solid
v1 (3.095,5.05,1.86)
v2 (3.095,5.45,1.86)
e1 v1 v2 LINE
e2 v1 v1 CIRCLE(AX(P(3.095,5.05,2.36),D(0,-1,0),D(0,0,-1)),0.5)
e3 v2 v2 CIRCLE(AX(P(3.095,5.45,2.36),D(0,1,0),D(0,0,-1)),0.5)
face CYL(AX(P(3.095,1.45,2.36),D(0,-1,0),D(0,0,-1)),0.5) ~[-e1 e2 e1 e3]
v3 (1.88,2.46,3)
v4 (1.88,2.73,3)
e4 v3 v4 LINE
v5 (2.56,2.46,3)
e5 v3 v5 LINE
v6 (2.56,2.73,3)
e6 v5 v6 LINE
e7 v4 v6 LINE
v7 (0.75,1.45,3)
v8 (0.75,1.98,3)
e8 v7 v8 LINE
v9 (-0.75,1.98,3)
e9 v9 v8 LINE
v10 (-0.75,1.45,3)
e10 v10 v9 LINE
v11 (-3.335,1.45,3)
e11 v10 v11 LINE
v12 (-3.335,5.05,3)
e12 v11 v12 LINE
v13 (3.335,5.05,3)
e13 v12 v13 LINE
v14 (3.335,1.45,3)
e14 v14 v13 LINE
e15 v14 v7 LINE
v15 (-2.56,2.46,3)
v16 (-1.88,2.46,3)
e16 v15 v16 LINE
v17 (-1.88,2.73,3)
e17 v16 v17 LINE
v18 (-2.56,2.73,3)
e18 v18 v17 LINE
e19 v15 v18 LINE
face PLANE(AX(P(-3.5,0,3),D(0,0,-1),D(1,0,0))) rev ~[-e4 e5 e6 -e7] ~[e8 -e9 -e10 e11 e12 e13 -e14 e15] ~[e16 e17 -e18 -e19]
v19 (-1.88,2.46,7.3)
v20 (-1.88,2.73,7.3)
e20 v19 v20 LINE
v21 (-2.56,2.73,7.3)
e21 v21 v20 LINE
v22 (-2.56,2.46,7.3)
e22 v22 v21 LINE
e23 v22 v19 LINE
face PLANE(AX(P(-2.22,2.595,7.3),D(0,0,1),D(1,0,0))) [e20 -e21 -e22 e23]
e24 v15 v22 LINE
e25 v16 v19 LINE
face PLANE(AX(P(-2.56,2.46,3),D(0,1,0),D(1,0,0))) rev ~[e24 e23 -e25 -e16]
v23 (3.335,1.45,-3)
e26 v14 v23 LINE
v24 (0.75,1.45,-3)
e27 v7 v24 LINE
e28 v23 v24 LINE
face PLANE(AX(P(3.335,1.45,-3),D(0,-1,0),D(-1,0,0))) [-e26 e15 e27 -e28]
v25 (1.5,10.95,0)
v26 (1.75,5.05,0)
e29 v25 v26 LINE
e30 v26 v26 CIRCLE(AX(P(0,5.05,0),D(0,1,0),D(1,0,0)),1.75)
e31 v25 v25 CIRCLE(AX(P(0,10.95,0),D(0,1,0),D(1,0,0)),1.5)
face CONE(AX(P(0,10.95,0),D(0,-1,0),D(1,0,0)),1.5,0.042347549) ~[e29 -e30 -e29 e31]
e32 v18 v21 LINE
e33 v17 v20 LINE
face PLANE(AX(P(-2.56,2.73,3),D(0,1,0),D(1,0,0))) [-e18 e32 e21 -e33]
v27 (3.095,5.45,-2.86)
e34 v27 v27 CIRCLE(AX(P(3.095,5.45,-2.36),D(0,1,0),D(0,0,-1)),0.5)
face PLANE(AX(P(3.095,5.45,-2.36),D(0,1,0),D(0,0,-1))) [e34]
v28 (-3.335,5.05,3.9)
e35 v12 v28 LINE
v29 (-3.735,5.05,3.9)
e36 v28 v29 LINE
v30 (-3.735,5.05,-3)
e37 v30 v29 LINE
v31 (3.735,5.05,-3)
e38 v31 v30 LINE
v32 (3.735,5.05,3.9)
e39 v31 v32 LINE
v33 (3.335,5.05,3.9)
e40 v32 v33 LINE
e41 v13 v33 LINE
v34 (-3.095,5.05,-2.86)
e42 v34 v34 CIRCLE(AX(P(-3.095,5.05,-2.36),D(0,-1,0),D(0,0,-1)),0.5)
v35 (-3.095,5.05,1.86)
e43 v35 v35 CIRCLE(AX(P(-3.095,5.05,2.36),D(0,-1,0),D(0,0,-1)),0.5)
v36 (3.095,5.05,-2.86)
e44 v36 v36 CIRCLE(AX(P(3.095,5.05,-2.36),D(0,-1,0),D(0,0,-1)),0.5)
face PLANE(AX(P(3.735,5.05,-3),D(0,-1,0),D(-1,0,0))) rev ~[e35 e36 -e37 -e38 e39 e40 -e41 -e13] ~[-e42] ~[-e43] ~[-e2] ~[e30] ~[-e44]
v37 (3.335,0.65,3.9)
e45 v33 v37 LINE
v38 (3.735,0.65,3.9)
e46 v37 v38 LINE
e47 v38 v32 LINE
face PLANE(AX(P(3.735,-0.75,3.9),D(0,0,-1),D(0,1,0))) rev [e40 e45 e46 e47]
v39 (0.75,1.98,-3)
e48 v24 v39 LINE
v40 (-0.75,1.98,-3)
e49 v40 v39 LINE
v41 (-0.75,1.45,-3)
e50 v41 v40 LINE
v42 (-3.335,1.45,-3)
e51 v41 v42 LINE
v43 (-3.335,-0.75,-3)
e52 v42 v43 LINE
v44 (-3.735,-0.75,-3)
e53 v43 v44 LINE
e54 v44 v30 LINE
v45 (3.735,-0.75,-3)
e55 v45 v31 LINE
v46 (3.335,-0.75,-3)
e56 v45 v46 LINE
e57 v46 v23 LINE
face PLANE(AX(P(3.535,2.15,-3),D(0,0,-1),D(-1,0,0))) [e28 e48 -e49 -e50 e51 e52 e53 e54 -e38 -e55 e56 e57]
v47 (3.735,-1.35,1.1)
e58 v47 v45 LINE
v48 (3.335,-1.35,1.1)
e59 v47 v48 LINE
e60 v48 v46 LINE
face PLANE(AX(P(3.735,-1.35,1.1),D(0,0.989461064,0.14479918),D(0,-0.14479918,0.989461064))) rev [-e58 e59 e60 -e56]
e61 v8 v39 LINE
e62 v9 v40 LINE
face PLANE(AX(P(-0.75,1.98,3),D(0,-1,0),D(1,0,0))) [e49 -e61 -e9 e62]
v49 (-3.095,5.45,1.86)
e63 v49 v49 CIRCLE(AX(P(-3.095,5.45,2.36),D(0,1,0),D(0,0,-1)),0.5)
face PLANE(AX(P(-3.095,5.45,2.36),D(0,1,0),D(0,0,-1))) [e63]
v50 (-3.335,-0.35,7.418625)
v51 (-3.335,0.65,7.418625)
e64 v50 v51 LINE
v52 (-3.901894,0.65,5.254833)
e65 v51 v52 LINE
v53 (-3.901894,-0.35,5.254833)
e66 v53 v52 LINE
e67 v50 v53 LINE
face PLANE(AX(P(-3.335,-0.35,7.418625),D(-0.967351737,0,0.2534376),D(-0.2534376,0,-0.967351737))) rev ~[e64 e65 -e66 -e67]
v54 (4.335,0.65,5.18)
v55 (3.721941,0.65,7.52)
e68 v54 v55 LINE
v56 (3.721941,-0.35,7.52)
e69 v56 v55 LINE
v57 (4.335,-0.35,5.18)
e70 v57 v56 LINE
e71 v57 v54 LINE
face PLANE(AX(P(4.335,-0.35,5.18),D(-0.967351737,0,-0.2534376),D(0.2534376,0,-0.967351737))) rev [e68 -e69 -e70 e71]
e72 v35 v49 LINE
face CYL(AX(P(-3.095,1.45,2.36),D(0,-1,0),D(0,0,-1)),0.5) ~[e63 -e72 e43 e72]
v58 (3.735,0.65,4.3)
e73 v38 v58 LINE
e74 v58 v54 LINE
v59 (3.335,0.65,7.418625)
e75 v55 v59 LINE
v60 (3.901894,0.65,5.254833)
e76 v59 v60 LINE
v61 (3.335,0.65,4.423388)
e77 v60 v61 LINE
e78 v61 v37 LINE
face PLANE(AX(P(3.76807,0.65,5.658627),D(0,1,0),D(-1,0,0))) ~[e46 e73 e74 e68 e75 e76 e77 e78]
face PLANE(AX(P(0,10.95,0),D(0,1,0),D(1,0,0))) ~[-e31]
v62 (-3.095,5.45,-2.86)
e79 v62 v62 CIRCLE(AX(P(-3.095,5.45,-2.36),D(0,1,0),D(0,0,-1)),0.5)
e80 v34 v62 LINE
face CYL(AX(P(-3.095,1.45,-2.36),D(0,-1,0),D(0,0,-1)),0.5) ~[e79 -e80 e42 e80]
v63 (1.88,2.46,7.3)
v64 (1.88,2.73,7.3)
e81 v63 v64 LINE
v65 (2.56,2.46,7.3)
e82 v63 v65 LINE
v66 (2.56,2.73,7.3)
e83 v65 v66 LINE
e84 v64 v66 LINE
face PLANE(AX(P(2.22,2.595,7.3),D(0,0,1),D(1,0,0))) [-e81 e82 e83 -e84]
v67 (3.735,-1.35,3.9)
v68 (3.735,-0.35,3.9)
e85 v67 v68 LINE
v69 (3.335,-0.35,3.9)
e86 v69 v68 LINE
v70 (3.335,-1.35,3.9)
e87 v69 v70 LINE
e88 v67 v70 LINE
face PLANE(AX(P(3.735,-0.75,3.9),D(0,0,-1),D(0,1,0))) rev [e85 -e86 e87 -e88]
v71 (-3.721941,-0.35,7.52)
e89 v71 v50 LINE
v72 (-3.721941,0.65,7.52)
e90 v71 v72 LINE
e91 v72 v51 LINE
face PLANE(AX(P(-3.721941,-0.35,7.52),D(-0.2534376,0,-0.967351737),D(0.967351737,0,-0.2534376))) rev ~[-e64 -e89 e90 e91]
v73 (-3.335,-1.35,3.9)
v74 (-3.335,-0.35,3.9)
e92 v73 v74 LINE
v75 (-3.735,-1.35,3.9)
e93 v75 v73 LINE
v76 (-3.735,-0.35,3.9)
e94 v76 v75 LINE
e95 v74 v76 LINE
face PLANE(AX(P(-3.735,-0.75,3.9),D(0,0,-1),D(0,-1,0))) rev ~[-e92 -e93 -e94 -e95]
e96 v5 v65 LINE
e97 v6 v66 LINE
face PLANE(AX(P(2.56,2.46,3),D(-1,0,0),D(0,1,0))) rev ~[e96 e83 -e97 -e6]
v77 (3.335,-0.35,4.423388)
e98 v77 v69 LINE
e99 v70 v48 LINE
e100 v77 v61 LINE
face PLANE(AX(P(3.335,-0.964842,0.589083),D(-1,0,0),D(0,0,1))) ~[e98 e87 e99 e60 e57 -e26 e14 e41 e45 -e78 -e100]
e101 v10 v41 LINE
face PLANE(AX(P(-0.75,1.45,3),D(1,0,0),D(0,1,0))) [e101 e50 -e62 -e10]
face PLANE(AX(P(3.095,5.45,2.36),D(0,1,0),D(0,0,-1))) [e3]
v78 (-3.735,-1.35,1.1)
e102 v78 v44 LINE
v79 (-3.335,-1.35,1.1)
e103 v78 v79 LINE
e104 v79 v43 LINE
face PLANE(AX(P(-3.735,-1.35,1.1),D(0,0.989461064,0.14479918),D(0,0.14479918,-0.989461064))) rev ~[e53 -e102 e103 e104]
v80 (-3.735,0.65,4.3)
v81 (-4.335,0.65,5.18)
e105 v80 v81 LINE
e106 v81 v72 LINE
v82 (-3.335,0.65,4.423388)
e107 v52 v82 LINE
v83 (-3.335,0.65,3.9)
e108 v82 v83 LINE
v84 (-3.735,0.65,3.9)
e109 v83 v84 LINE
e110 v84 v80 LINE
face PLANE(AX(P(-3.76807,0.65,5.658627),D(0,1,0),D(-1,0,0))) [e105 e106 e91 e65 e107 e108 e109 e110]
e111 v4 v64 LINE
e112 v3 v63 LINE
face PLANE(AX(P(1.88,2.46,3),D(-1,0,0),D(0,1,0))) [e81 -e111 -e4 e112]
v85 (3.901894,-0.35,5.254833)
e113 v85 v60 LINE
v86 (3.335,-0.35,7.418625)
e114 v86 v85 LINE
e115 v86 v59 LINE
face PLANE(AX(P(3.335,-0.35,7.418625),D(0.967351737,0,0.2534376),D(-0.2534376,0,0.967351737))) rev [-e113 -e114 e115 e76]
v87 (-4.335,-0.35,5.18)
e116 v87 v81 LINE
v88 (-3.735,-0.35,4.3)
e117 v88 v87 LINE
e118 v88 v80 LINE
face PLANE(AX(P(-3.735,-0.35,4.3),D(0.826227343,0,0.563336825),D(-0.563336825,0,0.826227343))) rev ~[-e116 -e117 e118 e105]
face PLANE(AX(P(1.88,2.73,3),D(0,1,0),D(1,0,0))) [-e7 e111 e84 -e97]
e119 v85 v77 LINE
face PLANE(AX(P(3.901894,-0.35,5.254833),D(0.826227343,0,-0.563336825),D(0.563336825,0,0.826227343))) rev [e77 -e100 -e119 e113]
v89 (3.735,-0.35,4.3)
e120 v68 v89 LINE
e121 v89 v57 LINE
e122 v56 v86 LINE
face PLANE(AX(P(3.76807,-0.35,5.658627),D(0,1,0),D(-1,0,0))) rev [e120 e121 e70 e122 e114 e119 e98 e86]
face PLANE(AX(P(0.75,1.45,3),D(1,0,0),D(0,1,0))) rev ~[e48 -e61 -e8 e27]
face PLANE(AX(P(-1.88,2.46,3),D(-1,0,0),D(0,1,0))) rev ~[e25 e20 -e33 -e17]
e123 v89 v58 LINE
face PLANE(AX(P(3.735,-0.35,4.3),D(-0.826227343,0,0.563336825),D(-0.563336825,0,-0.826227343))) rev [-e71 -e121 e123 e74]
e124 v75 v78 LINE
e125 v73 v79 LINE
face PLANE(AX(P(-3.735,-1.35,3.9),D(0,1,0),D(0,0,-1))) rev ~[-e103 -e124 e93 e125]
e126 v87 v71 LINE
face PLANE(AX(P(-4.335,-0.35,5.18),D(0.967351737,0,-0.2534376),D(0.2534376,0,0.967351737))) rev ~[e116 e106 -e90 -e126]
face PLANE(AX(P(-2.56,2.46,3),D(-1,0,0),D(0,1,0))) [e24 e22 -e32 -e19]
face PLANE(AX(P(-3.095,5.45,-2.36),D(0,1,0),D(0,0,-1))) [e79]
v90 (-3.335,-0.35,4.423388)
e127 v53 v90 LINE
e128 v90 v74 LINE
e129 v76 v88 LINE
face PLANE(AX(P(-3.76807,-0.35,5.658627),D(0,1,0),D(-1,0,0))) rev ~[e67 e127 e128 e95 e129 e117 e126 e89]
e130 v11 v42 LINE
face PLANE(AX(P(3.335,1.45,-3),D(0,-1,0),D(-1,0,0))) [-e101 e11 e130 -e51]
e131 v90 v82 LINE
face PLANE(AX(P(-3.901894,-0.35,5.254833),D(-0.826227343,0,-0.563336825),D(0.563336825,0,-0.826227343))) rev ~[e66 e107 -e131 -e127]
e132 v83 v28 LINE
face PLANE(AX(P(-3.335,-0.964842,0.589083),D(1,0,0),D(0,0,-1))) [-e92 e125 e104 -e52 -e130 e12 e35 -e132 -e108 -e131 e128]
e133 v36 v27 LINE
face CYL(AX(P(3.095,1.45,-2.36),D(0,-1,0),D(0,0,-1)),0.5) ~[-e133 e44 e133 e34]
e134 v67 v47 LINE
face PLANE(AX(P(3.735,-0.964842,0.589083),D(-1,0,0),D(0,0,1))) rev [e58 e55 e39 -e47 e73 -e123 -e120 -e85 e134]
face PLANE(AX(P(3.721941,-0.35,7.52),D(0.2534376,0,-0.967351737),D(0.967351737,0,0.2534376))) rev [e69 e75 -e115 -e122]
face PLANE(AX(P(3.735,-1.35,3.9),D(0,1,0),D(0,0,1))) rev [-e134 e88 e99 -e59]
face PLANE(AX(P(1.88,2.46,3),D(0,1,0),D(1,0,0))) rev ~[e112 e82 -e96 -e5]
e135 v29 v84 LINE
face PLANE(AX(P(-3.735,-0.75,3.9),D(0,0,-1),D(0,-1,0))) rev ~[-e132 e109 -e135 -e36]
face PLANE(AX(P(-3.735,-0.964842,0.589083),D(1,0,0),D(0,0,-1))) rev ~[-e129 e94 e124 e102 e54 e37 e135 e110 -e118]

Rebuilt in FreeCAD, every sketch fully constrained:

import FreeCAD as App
import Part
import Sketcher
from FreeCAD import Vector
Q = App.Units.Quantity


def add_polygon(sketch, points):
    """Adds a closed chain of lines whose ends are joined by coincident constraints."""
    first, n = sketch.GeometryCount, len(points)
    for a, b in zip(points, points[1:] + points[:1]):
        sketch.addGeometry(Part.LineSegment(App.Vector(*a, 0), App.Vector(*b, 0)), False)
    for i in range(n):
        sketch.addConstraint(Sketcher.Constraint("Coincident", first + i, 2, first + (i + 1) % n, 1))

doc = App.newDocument("Part")
body = doc.addObject("PartDesign::Body", "Body")

# Sketch on XZ plane
sketch1 = body.newObject("Sketcher::SketchObject", "Sketch")
sketch1.AttachmentSupport = (doc.getObject("XZ_Plane"), [""])
sketch1.MapMode = "FlatFace"
add_polygon(sketch1, [(-4, -3), (-4, 3), (4, 3), (4, -3)])  # lines 0-3
sketch1.addConstraint([
    Sketcher.Constraint("Vertical", 0),
    Sketcher.Constraint("Horizontal", 1),
    Sketcher.Constraint("Vertical", 2),
    Sketcher.Constraint("Horizontal", 3),
    Sketcher.Constraint("Symmetric", 0, 2, 2, 2, -1, 1),
    Sketcher.Constraint("DistanceX", 1, 1, 1, 2, Q("7 mm")),
    Sketcher.Constraint("DistanceY", 0, 1, 0, 2, Q("6 mm")),
])
pad1 = body.newObject("PartDesign::Pad", "Pad")
pad1.Profile = sketch1
pad1.Length = 5.05
pad1.Reversed = True

# Sketch on XY plane
sketch2 = body.newObject("Sketcher::SketchObject", "Sketch001")
sketch2.AttachmentSupport = (doc.getObject("XY_Plane"), [""])
sketch2.MapMode = "FlatFace"
sketch2.AttachmentOffset = App.Placement(Vector(0, 0, 3), App.Rotation())
add_polygon(sketch2, [(-2.56, 2.73), (-2.56, 2.46), (-1.88, 2.46), (-1.88, 2.73)])  # lines 0-3
add_polygon(sketch2, [(1.88, 2.73), (1.88, 2.46), (2.56, 2.46), (2.56, 2.73)])  # lines 4-7
sketch2.addConstraint([
    Sketcher.Constraint("Vertical", 0),
    Sketcher.Constraint("Horizontal", 1),
    Sketcher.Constraint("Vertical", 2),
    Sketcher.Constraint("Horizontal", 3),
    Sketcher.Constraint("Vertical", 4),
    Sketcher.Constraint("Horizontal", 5),
    Sketcher.Constraint("Vertical", 6),
    Sketcher.Constraint("Horizontal", 7),
    Sketcher.Constraint("Symmetric", 1, 2, 4, 2, -2),
    Sketcher.Constraint("Symmetric", 3, 2, 6, 2, -2),
    Sketcher.Constraint("DistanceX", 1, 1, 1, 2, Q("0.68 mm")),
    Sketcher.Constraint("DistanceY", 0, 2, 0, 1, Q("0.27 mm")),
    Sketcher.Constraint("DistanceX", 0, 2, -1, 1, Q("2.56 mm")),
    Sketcher.Constraint("DistanceY", -1, 1, 0, 2, Q("2.46 mm")),
])
pad2 = body.newObject("PartDesign::Pad", "Pad001")
pad2.Profile = sketch2
pad2.Length = 4.3

# Sketch on XY plane
sketch3 = body.newObject("Sketcher::SketchObject", "Sketch002")
sketch3.AttachmentSupport = (doc.getObject("XY_Plane"), [""])
sketch3.MapMode = "FlatFace"
sketch3.AttachmentOffset = App.Placement(Vector(0, 0, -3), App.Rotation())
add_polygon(sketch3, [(3.73, 5.05), (3.73, -0.75), (3.33, -0.75), (3.33, 5.05)])  # lines 0-3
add_polygon(sketch3, [(-3.33, 5.05), (-3.33, -0.75), (-3.73, -0.75), (-3.73, 5.05)])  # lines 4-7
sketch3.addConstraint([
    Sketcher.Constraint("Vertical", 0),
    Sketcher.Constraint("Horizontal", 1),
    Sketcher.Constraint("Vertical", 2),
    Sketcher.Constraint("Horizontal", 3),
    Sketcher.Constraint("Vertical", 4),
    Sketcher.Constraint("Horizontal", 5),
    Sketcher.Constraint("Vertical", 6),
    Sketcher.Constraint("Horizontal", 7),
    Sketcher.Constraint("Symmetric", 1, 2, 4, 2, -2),
    Sketcher.Constraint("Symmetric", 3, 2, 6, 2, -2),
    Sketcher.Constraint("DistanceX", 1, 2, 1, 1, Q("0.4 mm")),
    Sketcher.Constraint("DistanceY", 0, 2, 0, 1, Q("5.8 mm")),
    Sketcher.Constraint("DistanceY", 0, 2, -1, 1, Q("0.75 mm")),
    Sketcher.Constraint("DistanceX", 4, 2, 1, 2, Q("6.67 mm")),
])
pad3 = body.newObject("PartDesign::Pad", "Pad002")
pad3.Profile = sketch3
pad3.Length = 6.9

# Sketch on XY plane
sketch4 = body.newObject("Sketcher::SketchObject", "Sketch003")
sketch4.AttachmentSupport = (doc.getObject("XY_Plane"), [""])
sketch4.MapMode = "FlatFace"
sketch4.AttachmentOffset = App.Placement(Vector(0, 0, -3), App.Rotation())
add_polygon(sketch4, [(3.3, 1.4), (3.3, 0), (-3.3, 0), (-3.3, 1.4)])  # lines 0-3
sketch4.addConstraint([
    Sketcher.Constraint("Vertical", 0),
    Sketcher.Constraint("Horizontal", 1),
    Sketcher.Constraint("Vertical", 2),
    Sketcher.Constraint("Horizontal", 3),
    Sketcher.Constraint("Symmetric", 0, 2, 1, 2, -1, 1),
    Sketcher.Constraint("DistanceX", 1, 2, 1, 1, Q("6.67 mm")),
    Sketcher.Constraint("DistanceY", 0, 2, 0, 1, Q("1.45 mm")),
])
pocket1 = body.newObject("PartDesign::Pocket", "Pocket")
pocket1.Profile = sketch4
pocket1.Type = "ThroughAll"
pocket1.Reversed = True

# Sketch on XY plane
sketch5 = body.newObject("Sketcher::SketchObject", "Sketch004")
sketch5.AttachmentSupport = (doc.getObject("XY_Plane"), [""])
sketch5.MapMode = "FlatFace"
sketch5.AttachmentOffset = App.Placement(Vector(0, 0, 3), App.Rotation())
add_polygon(sketch5, [(-0.8, 2), (-0.8, 1.4), (0.8, 1.4), (0.8, 2)])  # lines 0-3
sketch5.addConstraint([
    Sketcher.Constraint("Vertical", 0),
    Sketcher.Constraint("Horizontal", 1),
    Sketcher.Constraint("Vertical", 2),
    Sketcher.Constraint("Horizontal", 3),
    Sketcher.Constraint("DistanceX", 1, 1, 1, 2, Q("1.5 mm")),
    Sketcher.Constraint("DistanceY", 0, 2, 0, 1, Q("0.53 mm")),
    Sketcher.Constraint("DistanceX", 0, 2, -1, 1, Q("0.75 mm")),
    Sketcher.Constraint("DistanceY", -1, 1, 0, 2, Q("1.45 mm")),
])
pocket2 = body.newObject("PartDesign::Pocket", "Pocket001")
pocket2.Profile = sketch5
pocket2.Type = "UpToFirst"

# Sketch on XZ plane
sketch6 = body.newObject("Sketcher::SketchObject", "Sketch005")
sketch6.AttachmentSupport = (doc.getObject("XZ_Plane"), [""])
sketch6.MapMode = "FlatFace"
sketch6.AttachmentOffset = App.Placement(Vector(0, 0, -1.45), App.Rotation())
sketch6.addGeometry([
    Part.Circle(Vector(-3.1, -2.4, 0), Vector(0, 0, 1), 0.5),
    Part.Circle(Vector(-3.1, 2.4, 0), Vector(0, 0, 1), 0.5),
    Part.Circle(Vector(3.1, -2.4, 0), Vector(0, 0, 1), 0.5),
    Part.Circle(Vector(3.1, 2.4, 0), Vector(0, 0, 1), 0.5),
], False)
sketch6.addConstraint([
    Sketcher.Constraint("Equal", 0, 1),
    Sketcher.Constraint("Equal", 1, 2),
    Sketcher.Constraint("Equal", 2, 3),
    Sketcher.Constraint("Symmetric", 1, 3, 2, 3, -1, 1),
    Sketcher.Constraint("Symmetric", 0, 3, 3, 3, -1, 1),
    Sketcher.Constraint("Symmetric", 0, 3, 2, 3, -2),
    Sketcher.Constraint("Diameter", 0, Q("1 mm")),
    Sketcher.Constraint("DistanceY", 0, 3, -1, 1, Q("2.36 mm")),
    Sketcher.Constraint("DistanceX", 0, 3, 2, 3, Q("6.19 mm")),
])
pad4 = body.newObject("PartDesign::Pad", "Pad003")
pad4.Profile = sketch6
pad4.Length = 4
pad4.Reversed = True

# Sketch on XY plane
sketch7 = body.newObject("Sketcher::SketchObject", "Sketch006")
sketch7.AttachmentSupport = (doc.getObject("XY_Plane"), [""])
sketch7.MapMode = "FlatFace"
add_polygon(sketch7, [(0, 10.9), (0, 5), (1.8, 5), (1.5, 10.9)])  # lines 0-3
sketch7.addConstraint([
    Sketcher.Constraint("Vertical", 0),
    Sketcher.Constraint("Horizontal", 1),
    Sketcher.Constraint("Horizontal", 3),
    Sketcher.Constraint("PointOnObject", 0, 2, -2),
    Sketcher.Constraint("DistanceX", 3, 2, 3, 1, Q("1.5 mm")),
    Sketcher.Constraint("DistanceY", 0, 2, 0, 1, Q("5.9 mm")),
    Sketcher.Constraint("DistanceX", 1, 1, 1, 2, Q("1.75 mm")),
    Sketcher.Constraint("DistanceY", -1, 1, 0, 2, Q("5.05 mm")),
])
revolution = body.newObject("PartDesign::Revolution", "Revolution")
revolution.Profile = sketch7
revolution.ReferenceAxis = (sketch7, ["V_Axis"])
revolution.Angle = 360

# Sketch on YZ plane
sketch8 = body.newObject("Sketcher::SketchObject", "Sketch007")
sketch8.AttachmentSupport = (doc.getObject("YZ_Plane"), [""])
sketch8.MapMode = "FlatFace"
sketch8.AttachmentOffset = App.Placement(Vector(0, 0, -3.735), App.Rotation())
add_polygon(sketch8, [(-1.4, 3.9), (-0.8, 3.9), (-0.8, -3), (-1.4, 1.1)])  # lines 0-3
sketch8.addConstraint([
    Sketcher.Constraint("Horizontal", 0),
    Sketcher.Constraint("Vertical", 1),
    Sketcher.Constraint("Vertical", 3),
    Sketcher.Constraint("DistanceX", 0, 1, 0, 2, Q("0.6 mm")),
    Sketcher.Constraint("DistanceY", 1, 2, 1, 1, Q("6.9 mm")),
    Sketcher.Constraint("DistanceY", 3, 1, 3, 2, Q("2.8 mm")),
    Sketcher.Constraint("DistanceY", 1, 2, -1, 1, Q("3 mm")),
    Sketcher.Constraint("DistanceX", 0, 2, -1, 1, Q("0.75 mm")),
])
pad5 = body.newObject("PartDesign::Pad", "Pad004")
pad5.Profile = sketch8
pad5.Length = 0.4

# Sketch on XZ plane
sketch9 = body.newObject("Sketcher::SketchObject", "Sketch008")
sketch9.AttachmentSupport = (doc.getObject("XZ_Plane"), [""])
sketch9.MapMode = "FlatFace"
sketch9.AttachmentOffset = App.Placement(Vector(0, 0, 0.35), App.Rotation())
add_polygon(sketch9, [(-3.73, 4.3), (-3.73, 3.9), (-3.33, 3.9), (-3.33, 4.42), (-3.9, 5.25), (-3.33, 7.42), (-3.72, 7.52), (-4.33, 5.18)])  # lines 0-7
sketch9.addConstraint([
    Sketcher.Constraint("Vertical", 0),
    Sketcher.Constraint("Horizontal", 1),
    Sketcher.Constraint("Vertical", 2),
    Sketcher.Constraint("Perpendicular", 4, 5),
    Sketcher.Constraint("Perpendicular", 5, 6),
    Sketcher.Constraint("Parallel", 3, 7),
    Sketcher.Constraint("Vertical", 2, 2, 4, 2),
    Sketcher.Constraint("Equal", 1, 0),
    Sketcher.Constraint("DistanceX", 1, 1, 1, 2, Q("0.4 mm")),
    Sketcher.Constraint("DistanceX", 6, 2, 2, 2, Q("1 mm")),
    Sketcher.Constraint("Distance", 5, Q("0.4 mm")),
    Sketcher.Constraint("DistanceY", -1, 1, 0, 2, Q("3.9 mm")),
    Sketcher.Constraint("DistanceY", -1, 1, 5, 2, Q("7.52 mm")),
    Sketcher.Constraint("DistanceY", -1, 1, 6, 2, Q("5.18 mm")),
    Sketcher.Constraint("DistanceX", 0, 2, -1, 1, Q("3.735 mm")),
    Sketcher.Constraint("DistanceY", 2, 1, 2, 2, Q("0.523388 mm")),
])
pad6 = body.newObject("PartDesign::Pad", "Pad005")
pad6.Profile = sketch9
pad6.Length = 1
pad6.Reversed = True
doc.recompute()

mirrored = body.newObject("PartDesign::Mirrored", "Mirrored")
mirrored.Originals = [pad5, pad6]
mirrored.MirrorPlane = (doc.getObject("YZ_Plane"), [""])
body.Tip = mirrored

doc.recompute()
